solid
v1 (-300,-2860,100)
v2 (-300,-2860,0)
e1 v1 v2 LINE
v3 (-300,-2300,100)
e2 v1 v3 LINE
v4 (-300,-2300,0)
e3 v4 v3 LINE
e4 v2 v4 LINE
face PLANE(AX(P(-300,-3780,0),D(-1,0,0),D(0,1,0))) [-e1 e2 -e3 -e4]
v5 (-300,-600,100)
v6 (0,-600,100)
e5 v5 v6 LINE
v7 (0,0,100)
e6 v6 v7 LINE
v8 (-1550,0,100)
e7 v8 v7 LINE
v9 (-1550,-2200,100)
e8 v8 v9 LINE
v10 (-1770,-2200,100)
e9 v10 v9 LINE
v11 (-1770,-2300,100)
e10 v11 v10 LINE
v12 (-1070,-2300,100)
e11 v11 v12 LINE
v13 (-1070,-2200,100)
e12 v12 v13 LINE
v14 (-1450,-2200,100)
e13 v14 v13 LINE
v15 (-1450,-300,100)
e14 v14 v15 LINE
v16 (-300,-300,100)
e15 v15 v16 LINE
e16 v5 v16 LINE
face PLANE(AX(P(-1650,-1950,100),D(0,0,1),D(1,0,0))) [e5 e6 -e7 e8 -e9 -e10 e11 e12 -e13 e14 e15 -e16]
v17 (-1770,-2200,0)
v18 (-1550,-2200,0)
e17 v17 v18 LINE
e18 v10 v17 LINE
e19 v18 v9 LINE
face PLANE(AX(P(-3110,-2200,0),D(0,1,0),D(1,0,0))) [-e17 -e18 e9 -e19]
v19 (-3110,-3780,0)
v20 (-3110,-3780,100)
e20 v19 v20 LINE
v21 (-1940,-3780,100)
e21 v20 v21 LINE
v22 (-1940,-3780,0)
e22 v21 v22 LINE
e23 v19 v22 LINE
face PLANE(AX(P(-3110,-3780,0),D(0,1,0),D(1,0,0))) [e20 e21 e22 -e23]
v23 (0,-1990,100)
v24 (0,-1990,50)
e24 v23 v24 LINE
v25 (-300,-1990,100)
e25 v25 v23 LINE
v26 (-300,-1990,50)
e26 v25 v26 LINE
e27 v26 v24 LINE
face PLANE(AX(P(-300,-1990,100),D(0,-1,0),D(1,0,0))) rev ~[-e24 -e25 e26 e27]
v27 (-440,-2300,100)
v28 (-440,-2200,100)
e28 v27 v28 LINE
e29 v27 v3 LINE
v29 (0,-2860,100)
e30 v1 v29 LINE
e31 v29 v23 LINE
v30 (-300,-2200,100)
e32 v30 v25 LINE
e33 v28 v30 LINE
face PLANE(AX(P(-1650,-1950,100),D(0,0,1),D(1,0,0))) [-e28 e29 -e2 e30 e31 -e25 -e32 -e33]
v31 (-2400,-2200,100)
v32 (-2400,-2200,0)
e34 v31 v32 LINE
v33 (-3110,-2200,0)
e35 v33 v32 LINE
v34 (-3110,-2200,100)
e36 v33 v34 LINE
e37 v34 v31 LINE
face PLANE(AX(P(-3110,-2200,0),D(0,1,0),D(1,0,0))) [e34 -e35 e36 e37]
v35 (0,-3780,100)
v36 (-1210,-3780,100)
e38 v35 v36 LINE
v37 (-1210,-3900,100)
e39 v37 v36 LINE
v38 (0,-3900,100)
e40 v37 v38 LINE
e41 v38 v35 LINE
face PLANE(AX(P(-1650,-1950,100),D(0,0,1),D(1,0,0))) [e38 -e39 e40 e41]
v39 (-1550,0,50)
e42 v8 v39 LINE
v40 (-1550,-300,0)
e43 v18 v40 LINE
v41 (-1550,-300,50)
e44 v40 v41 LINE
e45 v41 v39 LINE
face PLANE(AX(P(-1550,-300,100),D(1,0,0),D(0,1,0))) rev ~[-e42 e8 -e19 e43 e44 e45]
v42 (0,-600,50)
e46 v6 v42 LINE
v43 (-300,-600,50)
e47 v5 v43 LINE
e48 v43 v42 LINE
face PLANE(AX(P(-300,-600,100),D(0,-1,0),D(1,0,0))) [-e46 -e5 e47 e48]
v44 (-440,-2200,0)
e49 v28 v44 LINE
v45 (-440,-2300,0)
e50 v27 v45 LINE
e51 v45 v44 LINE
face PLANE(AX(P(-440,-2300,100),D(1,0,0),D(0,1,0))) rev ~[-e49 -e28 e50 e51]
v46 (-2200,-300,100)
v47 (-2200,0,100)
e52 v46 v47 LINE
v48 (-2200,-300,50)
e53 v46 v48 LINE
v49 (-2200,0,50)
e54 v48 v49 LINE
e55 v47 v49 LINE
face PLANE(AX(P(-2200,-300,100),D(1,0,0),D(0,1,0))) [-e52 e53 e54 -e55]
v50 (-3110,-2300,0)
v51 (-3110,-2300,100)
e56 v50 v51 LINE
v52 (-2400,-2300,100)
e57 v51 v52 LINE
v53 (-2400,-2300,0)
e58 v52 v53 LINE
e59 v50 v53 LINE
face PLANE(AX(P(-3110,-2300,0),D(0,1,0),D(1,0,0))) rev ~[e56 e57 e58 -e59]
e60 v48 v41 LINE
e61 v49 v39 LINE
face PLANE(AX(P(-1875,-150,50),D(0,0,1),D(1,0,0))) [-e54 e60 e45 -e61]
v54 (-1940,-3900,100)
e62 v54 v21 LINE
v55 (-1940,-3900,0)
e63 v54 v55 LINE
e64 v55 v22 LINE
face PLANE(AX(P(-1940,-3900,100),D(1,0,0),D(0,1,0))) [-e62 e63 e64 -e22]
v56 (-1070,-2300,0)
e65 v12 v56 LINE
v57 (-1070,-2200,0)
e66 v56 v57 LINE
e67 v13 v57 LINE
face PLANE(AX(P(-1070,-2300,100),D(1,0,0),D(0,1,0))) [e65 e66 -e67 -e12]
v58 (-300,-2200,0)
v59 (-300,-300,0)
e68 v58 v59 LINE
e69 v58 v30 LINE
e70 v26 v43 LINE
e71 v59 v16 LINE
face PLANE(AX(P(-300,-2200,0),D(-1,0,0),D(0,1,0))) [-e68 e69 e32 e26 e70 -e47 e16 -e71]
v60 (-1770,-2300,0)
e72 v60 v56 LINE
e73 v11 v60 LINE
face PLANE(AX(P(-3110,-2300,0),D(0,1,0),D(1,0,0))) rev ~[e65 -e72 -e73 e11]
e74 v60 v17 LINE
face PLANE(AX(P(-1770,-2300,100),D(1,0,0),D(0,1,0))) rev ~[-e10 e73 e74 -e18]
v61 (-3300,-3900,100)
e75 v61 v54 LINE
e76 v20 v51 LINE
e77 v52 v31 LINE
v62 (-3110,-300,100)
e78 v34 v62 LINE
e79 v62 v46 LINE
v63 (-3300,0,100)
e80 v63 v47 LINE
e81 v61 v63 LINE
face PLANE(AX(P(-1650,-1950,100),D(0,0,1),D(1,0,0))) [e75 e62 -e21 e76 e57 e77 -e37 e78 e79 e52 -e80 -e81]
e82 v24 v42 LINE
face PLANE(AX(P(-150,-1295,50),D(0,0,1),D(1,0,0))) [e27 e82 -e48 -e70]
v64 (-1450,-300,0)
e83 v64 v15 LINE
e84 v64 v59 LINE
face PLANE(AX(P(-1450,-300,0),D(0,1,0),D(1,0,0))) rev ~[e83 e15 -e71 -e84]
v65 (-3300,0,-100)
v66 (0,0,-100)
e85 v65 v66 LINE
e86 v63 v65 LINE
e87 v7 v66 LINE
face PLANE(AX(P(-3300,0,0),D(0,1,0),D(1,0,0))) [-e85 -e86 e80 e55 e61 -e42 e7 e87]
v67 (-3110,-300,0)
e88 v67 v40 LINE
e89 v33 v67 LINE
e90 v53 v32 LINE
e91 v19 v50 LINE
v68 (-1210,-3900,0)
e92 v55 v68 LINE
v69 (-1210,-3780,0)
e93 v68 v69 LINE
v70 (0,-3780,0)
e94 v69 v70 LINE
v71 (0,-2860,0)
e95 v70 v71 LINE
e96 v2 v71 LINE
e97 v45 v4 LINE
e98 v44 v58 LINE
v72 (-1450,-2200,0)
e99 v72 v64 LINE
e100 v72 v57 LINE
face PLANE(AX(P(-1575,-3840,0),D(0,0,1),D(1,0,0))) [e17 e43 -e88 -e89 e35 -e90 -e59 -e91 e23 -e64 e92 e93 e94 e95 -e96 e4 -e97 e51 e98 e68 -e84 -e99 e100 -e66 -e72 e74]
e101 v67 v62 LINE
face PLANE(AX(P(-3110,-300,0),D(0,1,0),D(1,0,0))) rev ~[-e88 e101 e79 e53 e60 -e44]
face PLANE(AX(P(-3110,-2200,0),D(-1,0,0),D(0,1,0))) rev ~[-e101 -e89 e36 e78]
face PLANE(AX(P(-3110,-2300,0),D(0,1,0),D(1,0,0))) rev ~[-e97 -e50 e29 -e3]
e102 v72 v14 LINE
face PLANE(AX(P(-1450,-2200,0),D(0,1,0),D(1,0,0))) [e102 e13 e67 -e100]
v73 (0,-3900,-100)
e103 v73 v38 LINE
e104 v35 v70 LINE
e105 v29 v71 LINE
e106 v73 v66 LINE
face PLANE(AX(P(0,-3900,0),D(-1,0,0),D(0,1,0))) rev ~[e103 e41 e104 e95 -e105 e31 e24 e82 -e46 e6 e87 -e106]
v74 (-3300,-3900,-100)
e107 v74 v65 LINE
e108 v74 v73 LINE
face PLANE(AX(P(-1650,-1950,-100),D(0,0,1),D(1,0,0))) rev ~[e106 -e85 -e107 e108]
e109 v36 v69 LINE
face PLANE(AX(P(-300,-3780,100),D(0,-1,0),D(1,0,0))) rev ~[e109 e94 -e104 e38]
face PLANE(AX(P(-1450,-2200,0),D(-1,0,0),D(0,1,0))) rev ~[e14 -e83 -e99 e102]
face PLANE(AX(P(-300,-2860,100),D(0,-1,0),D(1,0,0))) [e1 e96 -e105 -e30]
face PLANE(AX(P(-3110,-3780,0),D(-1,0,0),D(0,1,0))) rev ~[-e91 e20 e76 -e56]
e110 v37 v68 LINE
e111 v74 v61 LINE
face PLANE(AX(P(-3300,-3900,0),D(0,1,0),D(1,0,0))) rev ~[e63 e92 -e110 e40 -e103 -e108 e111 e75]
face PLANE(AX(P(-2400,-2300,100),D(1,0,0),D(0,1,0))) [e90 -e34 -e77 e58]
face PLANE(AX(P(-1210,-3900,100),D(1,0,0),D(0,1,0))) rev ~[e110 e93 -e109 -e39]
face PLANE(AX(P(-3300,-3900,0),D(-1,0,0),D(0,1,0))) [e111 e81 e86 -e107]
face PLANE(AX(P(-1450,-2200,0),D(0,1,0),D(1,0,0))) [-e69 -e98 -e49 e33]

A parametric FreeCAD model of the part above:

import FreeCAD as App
import Part
import Sketcher
from FreeCAD import Vector
Q = App.Units.Quantity

doc = App.newDocument("Part")
body = doc.addObject("PartDesign::Body", "Body")

# Sketch on XY plane
sketch1 = doc.addObject("Sketcher::SketchObject", "Sketch")
body.addObject(sketch1)
sketch1.AttachmentSupport = (doc.XY_Plane, [""])
sketch1.MapMode = "FlatFace"
sketch1.addGeometry([
    Part.LineSegment(Vector(-3300, 0, 0), Vector(-3300, -3900, 0)),
    Part.LineSegment(Vector(-3300, -3900, 0), Vector(0, -3900, 0)),
    Part.LineSegment(Vector(0, -3900, 0), Vector(0, 0, 0)),
    Part.LineSegment(Vector(0, 0, 0), Vector(-3300, 0, 0)),
], False)
sketch1.addConstraint([
    Sketcher.Constraint("Coincident", 0, 2, 1, 1),
    Sketcher.Constraint("Coincident", 1, 2, 2, 1),
    Sketcher.Constraint("Coincident", 2, 2, 3, 1),
    Sketcher.Constraint("Coincident", 3, 2, 0, 1),
    Sketcher.Constraint("Vertical", 0),
    Sketcher.Constraint("Horizontal", 1),
    Sketcher.Constraint("Vertical", 2),
    Sketcher.Constraint("Horizontal", 3),
    Sketcher.Constraint("Coincident", 2, 2, -1, 1),
    Sketcher.Constraint("DistanceX", 1, 1, 1, 2, Q("3300 mm")),
    Sketcher.Constraint("DistanceY", 0, 2, 0, 1, Q("3900 mm")),
])
pad1 = doc.addObject("PartDesign::Pad", "Pad")
body.addObject(pad1)
pad1.Profile = sketch1
pad1.Length = 100
pad1.Reversed = True

# Sketch on XY plane
sketch2 = doc.addObject("Sketcher::SketchObject", "Sketch001")
body.addObject(sketch2)
sketch2.AttachmentSupport = (doc.XY_Plane, [""])
sketch2.MapMode = "FlatFace"
sketch2.addGeometry([
    Part.LineSegment(Vector(-3300, 0, 0), Vector(-3300, -3900, 0)),  # 0
    Part.LineSegment(Vector(-3300, -3900, 0), Vector(0, -3900, 0)),  # 1
    Part.LineSegment(Vector(0, -3900, 0), Vector(0, 0, 0)),  # 2
    Part.LineSegment(Vector(0, 0, 0), Vector(-3300, 0, 0)),  # 3
    Part.LineSegment(Vector(-300, -3780, 0), Vector(-3110, -3780, 0)),  # 4
    Part.LineSegment(Vector(-3110, -3780, 0), Vector(-3110, -2300, 0)),  # 5
    Part.LineSegment(Vector(-3110, -2300, 0), Vector(-300, -2300, 0)),  # 6
    Part.LineSegment(Vector(-300, -2300, 0), Vector(-300, -3780, 0)),  # 7
    Part.LineSegment(Vector(-1550, -2200, 0), Vector(-3110, -2200, 0)),  # 8
    Part.LineSegment(Vector(-3110, -2200, 0), Vector(-3110, -300, 0)),  # 9
    Part.LineSegment(Vector(-3110, -300, 0), Vector(-1550, -300, 0)),  # 10
    Part.LineSegment(Vector(-1550, -300, 0), Vector(-1550, -2200, 0)),  # 11
    Part.LineSegment(Vector(-300, -2200, 0), Vector(-1450, -2200, 0)),  # 12
    Part.LineSegment(Vector(-1450, -2200, 0), Vector(-1450, -300, 0)),  # 13
    Part.LineSegment(Vector(-1450, -300, 0), Vector(-300, -300, 0)),  # 14
    Part.LineSegment(Vector(-300, -300, 0), Vector(-300, -2200, 0)),  # 15
], False)
sketch2.addConstraint([
    Sketcher.Constraint("Coincident", 0, 2, 1, 1),
    Sketcher.Constraint("Coincident", 1, 2, 2, 1),
    Sketcher.Constraint("Coincident", 2, 2, 3, 1),
    Sketcher.Constraint("Coincident", 3, 2, 0, 1),
    Sketcher.Constraint("Coincident", 4, 2, 5, 1),
    Sketcher.Constraint("Coincident", 5, 2, 6, 1),
    Sketcher.Constraint("Coincident", 6, 2, 7, 1),
    Sketcher.Constraint("Coincident", 7, 2, 4, 1),
    Sketcher.Constraint("Coincident", 8, 2, 9, 1),
    Sketcher.Constraint("Coincident", 9, 2, 10, 1),
    Sketcher.Constraint("Coincident", 10, 2, 11, 1),
    Sketcher.Constraint("Coincident", 11, 2, 8, 1),
    Sketcher.Constraint("Coincident", 12, 2, 13, 1),
    Sketcher.Constraint("Coincident", 13, 2, 14, 1),
    Sketcher.Constraint("Coincident", 14, 2, 15, 1),
    Sketcher.Constraint("Coincident", 15, 2, 12, 1),
    Sketcher.Constraint("Vertical", 0),
    Sketcher.Constraint("Horizontal", 1),
    Sketcher.Constraint("Vertical", 2),
    Sketcher.Constraint("Horizontal", 3),
    Sketcher.Constraint("Horizontal", 4),
    Sketcher.Constraint("Vertical", 5),
    Sketcher.Constraint("Horizontal", 6),
    Sketcher.Constraint("Vertical", 7),
    Sketcher.Constraint("Horizontal", 8),
    Sketcher.Constraint("Vertical", 9),
    Sketcher.Constraint("Horizontal", 10),
    Sketcher.Constraint("Vertical", 11),
    Sketcher.Constraint("Horizontal", 12),
    Sketcher.Constraint("Vertical", 13),
    Sketcher.Constraint("Horizontal", 14),
    Sketcher.Constraint("Vertical", 15),
    Sketcher.Constraint("Coincident", 2, 2, -1, 1),
    Sketcher.Constraint("Horizontal", 11, 2, 12, 2),
    Sketcher.Constraint("Horizontal", 10, 2, 13, 2),
    Sketcher.Constraint("Vertical", 5, 2, 8, 2),
    Sketcher.Constraint("Vertical", 7, 2, 14, 2),
    Sketcher.Constraint("DistanceX", 1, 1, 1, 2, Q("3300 mm")),
    Sketcher.Constraint("DistanceX", 4, 2, 4, 1, Q("2810 mm")),
    Sketcher.Constraint("DistanceX", 8, 2, 8, 1, Q("1560 mm")),
    Sketcher.Constraint("DistanceX", 12, 2, 12, 1, Q("1150 mm")),
    Sketcher.Constraint("DistanceY", 0, 2, 0, 1, Q("3900 mm")),
    Sketcher.Constraint("DistanceY", 5, 1, 5, 2, Q("1480 mm")),
    Sketcher.Constraint("DistanceY", 9, 1, 9, 2, Q("1900 mm")),
    Sketcher.Constraint("DistanceX", 4, 2, -1, 1, Q("3110 mm")),
    Sketcher.Constraint("DistanceY", 4, 2, -1, 1, Q("3780 mm")),
    Sketcher.Constraint("DistanceY", 8, 2, -1, 1, Q("2200 mm")),
])
pad2 = doc.addObject("PartDesign::Pad", "Pad001")
body.addObject(pad2)
pad2.Profile = sketch2
pad2.Length = 100

# Sketch on XY plane
sketch3 = doc.addObject("Sketcher::SketchObject", "Sketch002")
body.addObject(sketch3)
sketch3.AttachmentSupport = (doc.XY_Plane, [""])
sketch3.MapMode = "FlatFace"
sketch3.AttachmentOffset = App.Placement(Vector(0, 0, 100), App.Rotation())
sketch3.addGeometry([
    Part.LineSegment(Vector(-2400, -2200, 0), Vector(-2400, -2300, 0)),  # 0
    Part.LineSegment(Vector(-2400, -2300, 0), Vector(-1770, -2300, 0)),  # 1
    Part.LineSegment(Vector(-1770, -2300, 0), Vector(-1770, -2200, 0)),  # 2
    Part.LineSegment(Vector(-1770, -2200, 0), Vector(-2400, -2200, 0)),  # 3
    Part.LineSegment(Vector(-1070, -2200, 0), Vector(-1070, -2300, 0)),  # 4
    Part.LineSegment(Vector(-1070, -2300, 0), Vector(-440, -2300, 0)),  # 5
    Part.LineSegment(Vector(-440, -2300, 0), Vector(-440, -2200, 0)),  # 6
    Part.LineSegment(Vector(-440, -2200, 0), Vector(-1070, -2200, 0)),  # 7
    Part.LineSegment(Vector(-300, -2860, 0), Vector(-300, -3780, 0)),  # 8
    Part.LineSegment(Vector(-300, -3780, 0), Vector(0, -3780, 0)),  # 9
    Part.LineSegment(Vector(0, -3780, 0), Vector(0, -2860, 0)),  # 10
    Part.LineSegment(Vector(0, -2860, 0), Vector(-300, -2860, 0)),  # 11
    Part.LineSegment(Vector(-1940, -3780, 0), Vector(-1940, -3900, 0)),  # 12
    Part.LineSegment(Vector(-1940, -3900, 0), Vector(-1210, -3900, 0)),  # 13
    Part.LineSegment(Vector(-1210, -3900, 0), Vector(-1210, -3780, 0)),  # 14
    Part.LineSegment(Vector(-1210, -3780, 0), Vector(-1940, -3780, 0)),  # 15
], False)
sketch3.addConstraint([
    Sketcher.Constraint("Coincident", 0, 2, 1, 1),
    Sketcher.Constraint("Coincident", 1, 2, 2, 1),
    Sketcher.Constraint("Coincident", 2, 2, 3, 1),
    Sketcher.Constraint("Coincident", 3, 2, 0, 1),
    Sketcher.Constraint("Coincident", 4, 2, 5, 1),
    Sketcher.Constraint("Coincident", 5, 2, 6, 1),
    Sketcher.Constraint("Coincident", 6, 2, 7, 1),
    Sketcher.Constraint("Coincident", 7, 2, 4, 1),
    Sketcher.Constraint("Coincident", 8, 2, 9, 1),
    Sketcher.Constraint("Coincident", 9, 2, 10, 1),
    Sketcher.Constraint("Coincident", 10, 2, 11, 1),
    Sketcher.Constraint("Coincident", 11, 2, 8, 1),
    Sketcher.Constraint("Coincident", 12, 2, 13, 1),
    Sketcher.Constraint("Coincident", 13, 2, 14, 1),
    Sketcher.Constraint("Coincident", 14, 2, 15, 1),
    Sketcher.Constraint("Coincident", 15, 2, 12, 1),
    Sketcher.Constraint("Vertical", 0),
    Sketcher.Constraint("Horizontal", 1),
    Sketcher.Constraint("Vertical", 2),
    Sketcher.Constraint("Horizontal", 3),
    Sketcher.Constraint("Vertical", 4),
    Sketcher.Constraint("Horizontal", 5),
    Sketcher.Constraint("Vertical", 6),
    Sketcher.Constraint("Horizontal", 7),
    Sketcher.Constraint("Vertical", 8),
    Sketcher.Constraint("Horizontal", 9),
    Sketcher.Constraint("Vertical", 10),
    Sketcher.Constraint("Horizontal", 11),
    Sketcher.Constraint("Vertical", 12),
    Sketcher.Constraint("Horizontal", 13),
    Sketcher.Constraint("Vertical", 14),
    Sketcher.Constraint("Horizontal", 15),
    Sketcher.Constraint("PointOnObject", 9, 2, -2),
    Sketcher.Constraint("Horizontal", 1, 2, 4, 2),
    Sketcher.Constraint("Horizontal", 3, 2, 6, 2),
    Sketcher.Constraint("Horizontal", 9, 2, 14, 2),
    Sketcher.Constraint("Equal", 3, 5),
    Sketcher.Constraint("DistanceX", 1, 1, 1, 2, Q("630 mm")),
    Sketcher.Constraint("DistanceX", 9, 1, 9, 2, Q("300 mm")),
    Sketcher.Constraint("DistanceX", 13, 1, 13, 2, Q("730 mm")),
    Sketcher.Constraint("DistanceY", 0, 2, 0, 1, Q("100 mm")),
    Sketcher.Constraint("DistanceY", 8, 2, 8, 1, Q("920 mm")),
    Sketcher.Constraint("DistanceY", 12, 2, 12, 1, Q("120 mm")),
    Sketcher.Constraint("DistanceX", 0, 2, -1, 1, Q("2400 mm")),
    Sketcher.Constraint("DistanceY", 0, 2, -1, 1, Q("2300 mm")),
    Sketcher.Constraint("DistanceX", 4, 2, -1, 1, Q("1070 mm")),
    Sketcher.Constraint("DistanceY", 8, 2, -1, 1, Q("3780 mm")),
    Sketcher.Constraint("DistanceX", 12, 2, -1, 1, Q("1940 mm")),
])
pocket1 = doc.addObject("PartDesign::Pocket", "Pocket")
body.addObject(pocket1)
pocket1.Profile = sketch3
pocket1.Length = 100

# Sketch on XY plane
sketch4 = doc.addObject("Sketcher::SketchObject", "Sketch003")
body.addObject(sketch4)
sketch4.AttachmentSupport = (doc.XY_Plane, [""])
sketch4.MapMode = "FlatFace"
sketch4.AttachmentOffset = App.Placement(Vector(0, 0, 100), App.Rotation())
sketch4.addGeometry([
    Part.LineSegment(Vector(-2200, 0, 0), Vector(-2200, -300, 0)),  # 0
    Part.LineSegment(Vector(-2200, -300, 0), Vector(-1550, -300, 0)),  # 1
    Part.LineSegment(Vector(-1550, -300, 0), Vector(-1550, 0, 0)),  # 2
    Part.LineSegment(Vector(-1550, 0, 0), Vector(-2200, 0, 0)),  # 3
    Part.LineSegment(Vector(-300, -600, 0), Vector(-300, -1990, 0)),  # 4
    Part.LineSegment(Vector(-300, -1990, 0), Vector(0, -1990, 0)),  # 5
    Part.LineSegment(Vector(0, -1990, 0), Vector(0, -600, 0)),  # 6
    Part.LineSegment(Vector(0, -600, 0), Vector(-300, -600, 0)),  # 7
], False)
sketch4.addConstraint([
    Sketcher.Constraint("Coincident", 0, 2, 1, 1),
    Sketcher.Constraint("Coincident", 1, 2, 2, 1),
    Sketcher.Constraint("Coincident", 2, 2, 3, 1),
    Sketcher.Constraint("Coincident", 3, 2, 0, 1),
    Sketcher.Constraint("Coincident", 4, 2, 5, 1),
    Sketcher.Constraint("Coincident", 5, 2, 6, 1),
    Sketcher.Constraint("Coincident", 6, 2, 7, 1),
    Sketcher.Constraint("Coincident", 7, 2, 4, 1),
    Sketcher.Constraint("Vertical", 0),
    Sketcher.Constraint("Horizontal", 1),
    Sketcher.Constraint("Vertical", 2),
    Sketcher.Constraint("Horizontal", 3),
    Sketcher.Constraint("Vertical", 4),
    Sketcher.Constraint("Horizontal", 5),
    Sketcher.Constraint("Vertical", 6),
    Sketcher.Constraint("Horizontal", 7),
    Sketcher.Constraint("PointOnObject", 2, 2, -1),
    Sketcher.Constraint("PointOnObject", 5, 2, -2),
    Sketcher.Constraint("Equal", 7, 0),
    Sketcher.Constraint("DistanceX", 1, 1, 1, 2, Q("650 mm")),
    Sketcher.Constraint("DistanceX", 5, 1, 5, 2, Q("300 mm")),
    Sketcher.Constraint("DistanceY", 4, 2, 4, 1, Q("1390 mm")),
    Sketcher.Constraint("DistanceX", 0, 2, -1, 1, Q("2200 mm")),
    Sketcher.Constraint("DistanceY", 4, 2, -1, 1, Q("1990 mm")),
])
pocket2 = doc.addObject("PartDesign::Pocket", "Pocket001")
body.addObject(pocket2)
pocket2.Profile = sketch4
pocket2.Length = 50

doc.recompute()
